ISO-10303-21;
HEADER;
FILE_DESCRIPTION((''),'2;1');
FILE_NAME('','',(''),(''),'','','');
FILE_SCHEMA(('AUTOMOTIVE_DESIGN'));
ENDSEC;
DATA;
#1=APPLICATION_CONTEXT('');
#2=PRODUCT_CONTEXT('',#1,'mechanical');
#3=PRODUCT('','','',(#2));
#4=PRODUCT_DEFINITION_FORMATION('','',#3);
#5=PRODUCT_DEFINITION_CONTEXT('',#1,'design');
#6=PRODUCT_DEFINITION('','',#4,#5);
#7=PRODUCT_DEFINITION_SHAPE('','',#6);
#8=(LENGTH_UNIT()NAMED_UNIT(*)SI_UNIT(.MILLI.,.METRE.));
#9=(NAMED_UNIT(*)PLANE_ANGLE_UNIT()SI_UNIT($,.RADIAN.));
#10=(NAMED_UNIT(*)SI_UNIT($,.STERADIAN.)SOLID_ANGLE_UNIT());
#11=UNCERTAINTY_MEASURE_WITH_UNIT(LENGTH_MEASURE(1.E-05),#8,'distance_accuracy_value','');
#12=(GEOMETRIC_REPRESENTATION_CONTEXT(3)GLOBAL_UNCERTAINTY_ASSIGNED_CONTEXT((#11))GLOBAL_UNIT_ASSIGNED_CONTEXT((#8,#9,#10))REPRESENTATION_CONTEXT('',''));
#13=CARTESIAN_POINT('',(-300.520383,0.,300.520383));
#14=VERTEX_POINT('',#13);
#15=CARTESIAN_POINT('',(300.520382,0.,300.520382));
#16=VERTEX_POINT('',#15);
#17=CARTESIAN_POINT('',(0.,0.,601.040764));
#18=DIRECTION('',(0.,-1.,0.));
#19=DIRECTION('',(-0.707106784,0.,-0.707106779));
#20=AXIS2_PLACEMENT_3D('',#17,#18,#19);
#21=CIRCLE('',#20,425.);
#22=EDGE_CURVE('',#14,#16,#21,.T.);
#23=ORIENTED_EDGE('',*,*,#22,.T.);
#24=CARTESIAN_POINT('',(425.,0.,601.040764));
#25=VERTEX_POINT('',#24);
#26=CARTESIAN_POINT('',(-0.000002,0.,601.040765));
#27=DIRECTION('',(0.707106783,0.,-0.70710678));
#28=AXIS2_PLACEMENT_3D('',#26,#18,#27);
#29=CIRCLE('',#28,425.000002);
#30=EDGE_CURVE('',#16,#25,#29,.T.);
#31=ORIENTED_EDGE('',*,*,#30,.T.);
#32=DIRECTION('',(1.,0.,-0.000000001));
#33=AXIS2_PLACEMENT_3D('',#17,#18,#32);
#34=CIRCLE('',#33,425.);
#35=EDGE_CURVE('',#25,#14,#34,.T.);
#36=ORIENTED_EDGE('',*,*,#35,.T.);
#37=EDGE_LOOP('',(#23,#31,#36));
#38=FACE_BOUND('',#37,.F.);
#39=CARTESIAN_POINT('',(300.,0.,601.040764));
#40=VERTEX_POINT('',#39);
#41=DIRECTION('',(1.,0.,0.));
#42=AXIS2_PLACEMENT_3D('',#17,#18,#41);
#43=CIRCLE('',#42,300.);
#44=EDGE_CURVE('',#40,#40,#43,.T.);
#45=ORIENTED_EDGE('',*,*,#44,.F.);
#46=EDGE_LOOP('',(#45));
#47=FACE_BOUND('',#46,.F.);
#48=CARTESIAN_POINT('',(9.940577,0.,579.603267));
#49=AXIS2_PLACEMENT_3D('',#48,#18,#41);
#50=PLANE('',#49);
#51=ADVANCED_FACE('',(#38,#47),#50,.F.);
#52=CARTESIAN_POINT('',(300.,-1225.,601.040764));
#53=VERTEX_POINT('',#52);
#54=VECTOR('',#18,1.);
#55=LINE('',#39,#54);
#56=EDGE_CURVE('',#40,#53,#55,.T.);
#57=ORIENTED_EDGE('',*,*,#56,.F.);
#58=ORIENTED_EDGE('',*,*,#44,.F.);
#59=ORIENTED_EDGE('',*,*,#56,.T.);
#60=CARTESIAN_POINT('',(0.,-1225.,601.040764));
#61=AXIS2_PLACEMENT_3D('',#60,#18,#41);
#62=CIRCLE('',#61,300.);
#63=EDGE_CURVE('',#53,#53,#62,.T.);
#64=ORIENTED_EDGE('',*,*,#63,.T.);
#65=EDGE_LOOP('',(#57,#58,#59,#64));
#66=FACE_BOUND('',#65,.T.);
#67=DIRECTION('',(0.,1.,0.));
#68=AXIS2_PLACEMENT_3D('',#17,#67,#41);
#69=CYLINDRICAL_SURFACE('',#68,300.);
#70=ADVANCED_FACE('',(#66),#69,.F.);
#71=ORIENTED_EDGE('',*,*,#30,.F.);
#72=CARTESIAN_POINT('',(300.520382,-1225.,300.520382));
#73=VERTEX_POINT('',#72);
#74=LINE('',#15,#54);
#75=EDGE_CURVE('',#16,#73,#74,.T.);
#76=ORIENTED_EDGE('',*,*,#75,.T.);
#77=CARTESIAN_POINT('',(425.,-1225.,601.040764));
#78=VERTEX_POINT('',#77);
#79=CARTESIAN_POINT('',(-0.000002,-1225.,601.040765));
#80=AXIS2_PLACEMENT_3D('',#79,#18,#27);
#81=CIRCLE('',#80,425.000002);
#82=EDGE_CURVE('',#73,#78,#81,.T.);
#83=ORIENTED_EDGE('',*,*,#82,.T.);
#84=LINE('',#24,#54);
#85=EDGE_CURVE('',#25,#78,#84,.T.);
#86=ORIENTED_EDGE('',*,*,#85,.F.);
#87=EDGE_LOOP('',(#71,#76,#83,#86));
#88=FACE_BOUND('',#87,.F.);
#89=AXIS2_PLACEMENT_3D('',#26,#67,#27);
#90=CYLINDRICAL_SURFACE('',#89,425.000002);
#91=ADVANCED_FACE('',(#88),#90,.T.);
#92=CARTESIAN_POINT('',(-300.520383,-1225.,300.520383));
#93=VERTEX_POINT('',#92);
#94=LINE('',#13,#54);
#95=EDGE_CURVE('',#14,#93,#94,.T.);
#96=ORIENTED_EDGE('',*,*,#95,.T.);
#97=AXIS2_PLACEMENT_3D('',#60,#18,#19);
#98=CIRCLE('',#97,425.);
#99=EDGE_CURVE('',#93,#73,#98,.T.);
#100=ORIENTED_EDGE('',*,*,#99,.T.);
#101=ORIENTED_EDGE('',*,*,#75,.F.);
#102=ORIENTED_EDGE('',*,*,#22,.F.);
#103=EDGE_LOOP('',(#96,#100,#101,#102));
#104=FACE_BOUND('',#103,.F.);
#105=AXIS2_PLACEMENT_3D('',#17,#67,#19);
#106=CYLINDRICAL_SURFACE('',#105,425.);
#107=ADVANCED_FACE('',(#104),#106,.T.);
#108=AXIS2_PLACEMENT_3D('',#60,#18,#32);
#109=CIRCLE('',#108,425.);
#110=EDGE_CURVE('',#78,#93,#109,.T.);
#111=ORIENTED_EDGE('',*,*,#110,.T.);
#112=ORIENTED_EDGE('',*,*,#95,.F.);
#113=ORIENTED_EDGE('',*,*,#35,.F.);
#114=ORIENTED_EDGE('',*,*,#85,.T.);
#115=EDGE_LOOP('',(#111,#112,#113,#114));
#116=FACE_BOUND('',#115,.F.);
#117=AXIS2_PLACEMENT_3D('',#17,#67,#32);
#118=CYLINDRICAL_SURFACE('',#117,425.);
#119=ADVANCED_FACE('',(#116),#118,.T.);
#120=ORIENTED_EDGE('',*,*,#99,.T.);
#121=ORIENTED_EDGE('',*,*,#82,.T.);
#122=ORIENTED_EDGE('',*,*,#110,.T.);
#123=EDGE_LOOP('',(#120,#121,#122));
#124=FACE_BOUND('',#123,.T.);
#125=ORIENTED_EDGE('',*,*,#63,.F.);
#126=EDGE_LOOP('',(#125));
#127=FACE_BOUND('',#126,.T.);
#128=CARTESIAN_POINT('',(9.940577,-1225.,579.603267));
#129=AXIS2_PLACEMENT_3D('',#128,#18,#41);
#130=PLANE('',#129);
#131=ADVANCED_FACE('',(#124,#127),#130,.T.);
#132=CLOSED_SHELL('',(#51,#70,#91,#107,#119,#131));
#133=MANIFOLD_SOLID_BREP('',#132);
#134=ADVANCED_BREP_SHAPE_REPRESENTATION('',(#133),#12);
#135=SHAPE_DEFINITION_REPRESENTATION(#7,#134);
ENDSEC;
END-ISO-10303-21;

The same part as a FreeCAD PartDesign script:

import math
import FreeCAD as App
import Part
import Sketcher

doc = App.newDocument("Part")
body = doc.addObject("PartDesign::Body", "Body")

sketch1 = doc.addObject("Sketcher::SketchObject", "Sketch")
body.addObject(sketch1)
sketch1.AttachmentSupport = (doc.XZ_Plane, [""])
sketch1.MapMode = "FlatFace"
sketch1.addGeometry([
    Part.ArcOfCircle(Part.Circle(App.Vector(0, 601, 0), App.Vector(0, 0, 1), 425), math.radians(-45), math.radians(0)),
    Part.ArcOfCircle(Part.Circle(App.Vector(0, 601, 0), App.Vector(0, 0, 1), 425), math.radians(0), math.radians(225)),
    Part.ArcOfCircle(Part.Circle(App.Vector(0, 601, 0), App.Vector(0, 0, 1), 425), math.radians(-135), math.radians(-45)),
    Part.Circle(App.Vector(0, 601, 0), App.Vector(0, 0, 1), 300),
], False)
sketch1.addConstraint([
    Sketcher.Constraint("Tangent", 0, 2, 1, 1),
    Sketcher.Constraint("Tangent", 1, 2, 2, 1),
    Sketcher.Constraint("Coincident", 2, 2, 0, 1),
    Sketcher.Constraint("Coincident", 3, 3, 0, 3),
    Sketcher.Constraint("Equal", 1, 2),
    Sketcher.Constraint("Symmetric", 1, 2, 2, 2, -2),
    Sketcher.Constraint("Horizontal", 3, 3, 0, 2),
    Sketcher.Constraint("Diameter", 3, 600.0),
    Sketcher.Constraint("Radius", 1, 425.0),
    Sketcher.Constraint("DistanceX", -1, 1, 2, 2, 300.520382),
    Sketcher.Constraint("DistanceY", -1, 1, 0, 3, 601.040765),
])
pad1 = doc.addObject("PartDesign::Pad", "Pad")
body.addObject(pad1)
pad1.Profile = sketch1
pad1.Length = 1225

doc.recompute()
